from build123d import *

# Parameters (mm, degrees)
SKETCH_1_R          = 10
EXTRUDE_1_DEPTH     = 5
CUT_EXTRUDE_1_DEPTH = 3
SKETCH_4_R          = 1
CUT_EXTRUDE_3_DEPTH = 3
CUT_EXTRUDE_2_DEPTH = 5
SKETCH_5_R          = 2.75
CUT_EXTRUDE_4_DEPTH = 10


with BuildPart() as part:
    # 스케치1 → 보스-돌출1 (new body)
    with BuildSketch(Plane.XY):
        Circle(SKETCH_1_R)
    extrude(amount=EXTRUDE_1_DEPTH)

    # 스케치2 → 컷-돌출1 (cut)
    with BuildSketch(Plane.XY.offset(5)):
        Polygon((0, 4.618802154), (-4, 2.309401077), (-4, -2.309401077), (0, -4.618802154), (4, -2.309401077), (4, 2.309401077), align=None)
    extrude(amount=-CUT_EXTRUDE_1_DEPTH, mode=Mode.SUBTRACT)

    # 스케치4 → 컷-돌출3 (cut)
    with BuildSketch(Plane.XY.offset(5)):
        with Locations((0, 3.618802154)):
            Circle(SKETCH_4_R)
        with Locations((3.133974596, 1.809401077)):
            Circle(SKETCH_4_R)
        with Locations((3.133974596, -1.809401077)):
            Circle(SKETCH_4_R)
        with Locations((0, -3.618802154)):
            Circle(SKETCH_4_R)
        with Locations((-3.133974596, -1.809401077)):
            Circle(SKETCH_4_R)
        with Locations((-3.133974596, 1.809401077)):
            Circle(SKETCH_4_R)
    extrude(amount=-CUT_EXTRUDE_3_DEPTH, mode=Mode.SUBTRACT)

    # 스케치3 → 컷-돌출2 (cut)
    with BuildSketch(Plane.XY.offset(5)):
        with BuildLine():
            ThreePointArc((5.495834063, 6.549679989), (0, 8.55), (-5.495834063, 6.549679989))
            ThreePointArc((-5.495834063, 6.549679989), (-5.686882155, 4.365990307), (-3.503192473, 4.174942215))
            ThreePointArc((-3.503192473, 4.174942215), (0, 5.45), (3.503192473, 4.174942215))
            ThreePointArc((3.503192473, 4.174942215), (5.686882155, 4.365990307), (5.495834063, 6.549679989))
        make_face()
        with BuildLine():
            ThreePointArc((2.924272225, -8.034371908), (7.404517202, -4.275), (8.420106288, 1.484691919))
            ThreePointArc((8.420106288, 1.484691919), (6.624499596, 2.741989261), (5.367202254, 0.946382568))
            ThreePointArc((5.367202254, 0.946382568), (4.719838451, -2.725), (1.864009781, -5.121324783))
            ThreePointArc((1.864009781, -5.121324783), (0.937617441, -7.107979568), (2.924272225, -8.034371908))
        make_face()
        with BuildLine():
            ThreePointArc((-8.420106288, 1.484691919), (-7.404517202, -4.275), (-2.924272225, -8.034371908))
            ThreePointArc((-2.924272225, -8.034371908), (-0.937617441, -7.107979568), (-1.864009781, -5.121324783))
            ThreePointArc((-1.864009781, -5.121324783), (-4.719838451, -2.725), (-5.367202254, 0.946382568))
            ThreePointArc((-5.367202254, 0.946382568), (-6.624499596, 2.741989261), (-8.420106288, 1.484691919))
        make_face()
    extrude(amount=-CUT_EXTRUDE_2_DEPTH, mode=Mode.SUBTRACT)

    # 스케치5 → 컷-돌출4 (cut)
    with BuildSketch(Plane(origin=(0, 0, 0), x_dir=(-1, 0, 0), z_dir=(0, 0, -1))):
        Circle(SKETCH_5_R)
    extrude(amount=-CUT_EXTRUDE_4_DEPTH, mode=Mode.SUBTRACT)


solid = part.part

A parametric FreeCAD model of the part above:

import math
import FreeCAD as App
import Part
import Sketcher

V = App.Vector
Q = App.Units.Quantity

doc = App.newDocument("Part")
body = doc.addObject("PartDesign::Body", "Body")

sketch1 = doc.addObject("Sketcher::SketchObject", "Sketch")
body.addObject(sketch1)
sketch1.AttachmentSupport = (doc.XY_Plane, [""])
sketch1.MapMode = "FlatFace"
sketch1.addGeometry(Part.Circle(V(0, 0, 0), V(0, 0, 1), 10), False)
sketch1.addConstraint(Sketcher.Constraint("Coincident", 0, 3, -1, 1))
sketch1.addConstraint(Sketcher.Constraint("Diameter", 0, 20.0))
pad1 = doc.addObject("PartDesign::Pad", "Pad")
body.addObject(pad1)
pad1.Profile = sketch1
pad1.Length = 5

sketch2 = doc.addObject("Sketcher::SketchObject", "Sketch001")
body.addObject(sketch2)
sketch2.AttachmentSupport = (doc.XY_Plane, [""])
sketch2.MapMode = "FlatFace"
sketch2.AttachmentOffset = App.Placement(V(0, 0, 5), App.Rotation())
sketch2.addGeometry(Part.LineSegment(V(0, 4.6, 0), V(-4, 2.3, 0)), False)
sketch2.addGeometry(Part.LineSegment(V(-4, 2.3, 0), V(-4, -2.3, 0)), False)
sketch2.addGeometry(Part.LineSegment(V(-4, -2.3, 0), V(0, -4.6, 0)), False)
sketch2.addGeometry(Part.LineSegment(V(0, -4.6, 0), V(4, -2.3, 0)), False)
sketch2.addGeometry(Part.LineSegment(V(4, -2.3, 0), V(4, 2.3, 0)), False)
sketch2.addGeometry(Part.LineSegment(V(4, 2.3, 0), V(0, 4.6, 0)), False)
sketch2.addConstraint(Sketcher.Constraint("Coincident", 0, 2, 1, 1))
sketch2.addConstraint(Sketcher.Constraint("Coincident", 1, 2, 2, 1))
sketch2.addConstraint(Sketcher.Constraint("Coincident", 2, 2, 3, 1))
sketch2.addConstraint(Sketcher.Constraint("Coincident", 3, 2, 4, 1))
sketch2.addConstraint(Sketcher.Constraint("Coincident", 4, 2, 5, 1))
sketch2.addConstraint(Sketcher.Constraint("Coincident", 5, 2, 0, 1))
sketch2.addConstraint(Sketcher.Constraint("Vertical", 1))
sketch2.addConstraint(Sketcher.Constraint("Vertical", 4))
sketch2.addConstraint(Sketcher.Constraint("Symmetric", 0, 2, 3, 2, -1, 1))
sketch2.addConstraint(Sketcher.Constraint("Symmetric", 2, 2, 5, 2, -1, 1))
sketch2.addConstraint(Sketcher.Constraint("PointOnObject", 2, 2, -2))
sketch2.addConstraint(Sketcher.Constraint("Parallel", 2, 5))
sketch2.addConstraint(Sketcher.Constraint("Horizontal", 1, 2, 3, 2))
sketch2.addConstraint(Sketcher.Constraint("Angle", 0, Q("-150 deg")))
sketch2.addConstraint(Sketcher.Constraint("DistanceX", 0, 2, -1, 1, 4.0))
sketch2.addConstraint(Sketcher.Constraint("DistanceY", -1, 1, 0, 2, 2.309401))
pocket1 = doc.addObject("PartDesign::Pocket", "Pocket")
body.addObject(pocket1)
pocket1.Profile = sketch2
pocket1.Length = 3

sketch3 = doc.addObject("Sketcher::SketchObject", "Sketch002")
body.addObject(sketch3)
sketch3.AttachmentSupport = (doc.XY_Plane, [""])
sketch3.MapMode = "FlatFace"
sketch3.AttachmentOffset = App.Placement(V(0, 0, 5), App.Rotation())
sketch3.addGeometry(Part.Circle(V(0, 3.6, 0), V(0, 0, 1), 1), False)
sketch3.addGeometry(Part.Circle(V(3.1, 1.8, 0), V(0, 0, 1), 1), False)
sketch3.addGeometry(Part.Circle(V(3.1, -1.8, 0), V(0, 0, 1), 1), False)
sketch3.addGeometry(Part.Circle(V(0, -3.6, 0), V(0, 0, 1), 1), False)
sketch3.addGeometry(Part.Circle(V(-3.1, -1.8, 0), V(0, 0, 1), 1), False)
sketch3.addGeometry(Part.Circle(V(-3.1, 1.8, 0), V(0, 0, 1), 1), False)
sketch3.addConstraint(Sketcher.Constraint("Equal", 0, 1))
sketch3.addConstraint(Sketcher.Constraint("Equal", 1, 2))
sketch3.addConstraint(Sketcher.Constraint("Equal", 2, 3))
sketch3.addConstraint(Sketcher.Constraint("Equal", 3, 4))
sketch3.addConstraint(Sketcher.Constraint("Equal", 4, 5))
sketch3.addConstraint(Sketcher.Constraint("Symmetric", 0, 3, 3, 3, -1, 1))
sketch3.addConstraint(Sketcher.Constraint("Symmetric", 1, 3, 4, 3, -1, 1))
sketch3.addConstraint(Sketcher.Constraint("Symmetric", 2, 3, 5, 3, -1, 1))
sketch3.addConstraint(Sketcher.Constraint("Symmetric", 2, 3, 4, 3, -2))
sketch3.addConstraint(Sketcher.Constraint("PointOnObject", 0, 3, -2))
sketch3.addConstraint(Sketcher.Constraint("Diameter", 0, 2.0))
sketch3.addConstraint(Sketcher.Constraint("DistanceY", -1, 1, 1, 3, 1.809401))
sketch3.addConstraint(Sketcher.Constraint("DistanceY", 1, 3, 0, 3, 1.809401))
sketch3.addConstraint(Sketcher.Constraint("DistanceX", 4, 3, 2, 3, 6.267949))
pocket2 = doc.addObject("PartDesign::Pocket", "Pocket001")
body.addObject(pocket2)
pocket2.Profile = sketch3
pocket2.Length = 3

sketch4 = doc.addObject("Sketcher::SketchObject", "Sketch003")
body.addObject(sketch4)
sketch4.AttachmentSupport = (doc.XY_Plane, [""])
sketch4.MapMode = "FlatFace"
sketch4.AttachmentOffset = App.Placement(V(0, 0, 5), App.Rotation())
sketch4.addGeometry(Part.ArcOfCircle(Part.Circle(V(0, 0, 0), V(0, 0, 1), 8.6), math.radians(50), math.radians(130)), False)
sketch4.addGeometry(Part.ArcOfCircle(Part.Circle(V(-4.5, 5.4, 0), V(0, 0, 1), 1.6), math.radians(130), math.radians(310)), False)
sketch4.addGeometry(Part.ArcOfCircle(Part.Circle(V(0, 0, 0), V(0, 0, 1), 5.5), math.radians(50), math.radians(130)), False)
sketch4.addGeometry(Part.ArcOfCircle(Part.Circle(V(4.5, 5.4, 0), V(0, 0, 1), 1.6), math.radians(-130), math.radians(50)), False)
sketch4.addGeometry(Part.ArcOfCircle(Part.Circle(V(0, 0, 0), V(0, 0, 1), 8.6), math.radians(-70), math.radians(10)), False)
sketch4.addGeometry(Part.ArcOfCircle(Part.Circle(V(6.9, 1.2, 0), V(0, 0, 1), 1.6), math.radians(10), math.radians(190)), False)
sketch4.addGeometry(Part.ArcOfCircle(Part.Circle(V(0, 0, 0), V(0, 0, 1), 5.4), math.radians(-70), math.radians(10)), False)
sketch4.addGeometry(Part.ArcOfCircle(Part.Circle(V(2.4, -6.6, 0), V(0, 0, 1), 1.6), math.radians(110), math.radians(290)), False)
sketch4.addGeometry(Part.ArcOfCircle(Part.Circle(V(0, 0, 0), V(0, 0, 1), 8.6), math.radians(170), math.radians(250)), False)
sketch4.addGeometry(Part.ArcOfCircle(Part.Circle(V(-2.4, -6.6, 0), V(0, 0, 1), 1.6), math.radians(-110), math.radians(70)), False)
sketch4.addGeometry(Part.ArcOfCircle(Part.Circle(V(0, 0, 0), V(0, 0, 1), 5.4), math.radians(170), math.radians(250)), False)
sketch4.addGeometry(Part.ArcOfCircle(Part.Circle(V(-6.9, 1.2, 0), V(0, 0, 1), 1.6), math.radians(-10), math.radians(170)), False)
sketch4.addConstraint(Sketcher.Constraint("Tangent", 0, 2, 1, 1))
sketch4.addConstraint(Sketcher.Constraint("Tangent", 1, 2, 2, 2))
sketch4.addConstraint(Sketcher.Constraint("Tangent", 2, 1, 3, 1))
sketch4.addConstraint(Sketcher.Constraint("Tangent", 3, 2, 0, 1))
sketch4.addConstraint(Sketcher.Constraint("Tangent", 4, 2, 5, 1))
sketch4.addConstraint(Sketcher.Constraint("Tangent", 5, 2, 6, 2))
sketch4.addConstraint(Sketcher.Constraint("Tangent", 6, 1, 7, 1))
sketch4.addConstraint(Sketcher.Constraint("Tangent", 7, 2, 4, 1))
sketch4.addConstraint(Sketcher.Constraint("Tangent", 8, 2, 9, 1))
sketch4.addConstraint(Sketcher.Constraint("Tangent", 9, 2, 10, 2))
sketch4.addConstraint(Sketcher.Constraint("Tangent", 10, 1, 11, 1))
sketch4.addConstraint(Sketcher.Constraint("Tangent", 11, 2, 8, 1))
sketch4.addConstraint(Sketcher.Constraint("Coincident", 0, 3, -1, 1))
sketch4.addConstraint(Sketcher.Constraint("Coincident", 2, 3, -1, 1))
sketch4.addConstraint(Sketcher.Constraint("Coincident", 4, 3, -1, 1))
sketch4.addConstraint(Sketcher.Constraint("Coincident", 6, 3, -1, 1))
sketch4.addConstraint(Sketcher.Constraint("Coincident", 8, 3, -1, 1))
sketch4.addConstraint(Sketcher.Constraint("Coincident", 10, 3, -1, 1))
sketch4.addConstraint(Sketcher.Constraint("Equal", 0, 4))
sketch4.addConstraint(Sketcher.Constraint("Equal", 3, 5))
sketch4.addConstraint(Sketcher.Constraint("Equal", 4, 8))
sketch4.addConstraint(Sketcher.Constraint("Equal", 7, 9))
sketch4.addConstraint(Sketcher.Constraint("Horizontal", 1, 3, 3, 3))
sketch4.addConstraint(Sketcher.Constraint("Horizontal", 7, 3, 9, 3))
sketch4.addConstraint(Sketcher.Constraint("Horizontal", 5, 3, 11, 3))
sketch4.addConstraint(Sketcher.Constraint("Radius", 0, 8.55))
sketch4.addConstraint(Sketcher.Constraint("Radius", 1, 1.55))
sketch4.addConstraint(Sketcher.Constraint("DistanceY", -1, 1, 1, 3, 5.362311))
sketch4.addConstraint(Sketcher.Constraint("DistanceX", -1, 1, 7, 3, 2.394141))
sketch4.addConstraint(Sketcher.Constraint("DistanceY", -1, 1, 4, 2, 1.484692))
pocket3 = doc.addObject("PartDesign::Pocket", "Pocket002")
body.addObject(pocket3)
pocket3.Profile = sketch4
pocket3.Length = 5

sketch5 = doc.addObject("Sketcher::SketchObject", "Sketch004")
body.addObject(sketch5)
sketch5.AttachmentSupport = (doc.XY_Plane, [""])
sketch5.MapMode = "FlatFace"
sketch5.addGeometry(Part.Circle(V(0, 0, 0), V(0, 0, 1), 2.8), False)
sketch5.addConstraint(Sketcher.Constraint("Coincident", 0, 3, -1, 1))
sketch5.addConstraint(Sketcher.Constraint("Diameter", 0, 5.5))
pocket4 = doc.addObject("PartDesign::Pocket", "Pocket003")
body.addObject(pocket4)
pocket4.Profile = sketch5
pocket4.Length = 10
pocket4.Reversed = True

doc.recompute()
